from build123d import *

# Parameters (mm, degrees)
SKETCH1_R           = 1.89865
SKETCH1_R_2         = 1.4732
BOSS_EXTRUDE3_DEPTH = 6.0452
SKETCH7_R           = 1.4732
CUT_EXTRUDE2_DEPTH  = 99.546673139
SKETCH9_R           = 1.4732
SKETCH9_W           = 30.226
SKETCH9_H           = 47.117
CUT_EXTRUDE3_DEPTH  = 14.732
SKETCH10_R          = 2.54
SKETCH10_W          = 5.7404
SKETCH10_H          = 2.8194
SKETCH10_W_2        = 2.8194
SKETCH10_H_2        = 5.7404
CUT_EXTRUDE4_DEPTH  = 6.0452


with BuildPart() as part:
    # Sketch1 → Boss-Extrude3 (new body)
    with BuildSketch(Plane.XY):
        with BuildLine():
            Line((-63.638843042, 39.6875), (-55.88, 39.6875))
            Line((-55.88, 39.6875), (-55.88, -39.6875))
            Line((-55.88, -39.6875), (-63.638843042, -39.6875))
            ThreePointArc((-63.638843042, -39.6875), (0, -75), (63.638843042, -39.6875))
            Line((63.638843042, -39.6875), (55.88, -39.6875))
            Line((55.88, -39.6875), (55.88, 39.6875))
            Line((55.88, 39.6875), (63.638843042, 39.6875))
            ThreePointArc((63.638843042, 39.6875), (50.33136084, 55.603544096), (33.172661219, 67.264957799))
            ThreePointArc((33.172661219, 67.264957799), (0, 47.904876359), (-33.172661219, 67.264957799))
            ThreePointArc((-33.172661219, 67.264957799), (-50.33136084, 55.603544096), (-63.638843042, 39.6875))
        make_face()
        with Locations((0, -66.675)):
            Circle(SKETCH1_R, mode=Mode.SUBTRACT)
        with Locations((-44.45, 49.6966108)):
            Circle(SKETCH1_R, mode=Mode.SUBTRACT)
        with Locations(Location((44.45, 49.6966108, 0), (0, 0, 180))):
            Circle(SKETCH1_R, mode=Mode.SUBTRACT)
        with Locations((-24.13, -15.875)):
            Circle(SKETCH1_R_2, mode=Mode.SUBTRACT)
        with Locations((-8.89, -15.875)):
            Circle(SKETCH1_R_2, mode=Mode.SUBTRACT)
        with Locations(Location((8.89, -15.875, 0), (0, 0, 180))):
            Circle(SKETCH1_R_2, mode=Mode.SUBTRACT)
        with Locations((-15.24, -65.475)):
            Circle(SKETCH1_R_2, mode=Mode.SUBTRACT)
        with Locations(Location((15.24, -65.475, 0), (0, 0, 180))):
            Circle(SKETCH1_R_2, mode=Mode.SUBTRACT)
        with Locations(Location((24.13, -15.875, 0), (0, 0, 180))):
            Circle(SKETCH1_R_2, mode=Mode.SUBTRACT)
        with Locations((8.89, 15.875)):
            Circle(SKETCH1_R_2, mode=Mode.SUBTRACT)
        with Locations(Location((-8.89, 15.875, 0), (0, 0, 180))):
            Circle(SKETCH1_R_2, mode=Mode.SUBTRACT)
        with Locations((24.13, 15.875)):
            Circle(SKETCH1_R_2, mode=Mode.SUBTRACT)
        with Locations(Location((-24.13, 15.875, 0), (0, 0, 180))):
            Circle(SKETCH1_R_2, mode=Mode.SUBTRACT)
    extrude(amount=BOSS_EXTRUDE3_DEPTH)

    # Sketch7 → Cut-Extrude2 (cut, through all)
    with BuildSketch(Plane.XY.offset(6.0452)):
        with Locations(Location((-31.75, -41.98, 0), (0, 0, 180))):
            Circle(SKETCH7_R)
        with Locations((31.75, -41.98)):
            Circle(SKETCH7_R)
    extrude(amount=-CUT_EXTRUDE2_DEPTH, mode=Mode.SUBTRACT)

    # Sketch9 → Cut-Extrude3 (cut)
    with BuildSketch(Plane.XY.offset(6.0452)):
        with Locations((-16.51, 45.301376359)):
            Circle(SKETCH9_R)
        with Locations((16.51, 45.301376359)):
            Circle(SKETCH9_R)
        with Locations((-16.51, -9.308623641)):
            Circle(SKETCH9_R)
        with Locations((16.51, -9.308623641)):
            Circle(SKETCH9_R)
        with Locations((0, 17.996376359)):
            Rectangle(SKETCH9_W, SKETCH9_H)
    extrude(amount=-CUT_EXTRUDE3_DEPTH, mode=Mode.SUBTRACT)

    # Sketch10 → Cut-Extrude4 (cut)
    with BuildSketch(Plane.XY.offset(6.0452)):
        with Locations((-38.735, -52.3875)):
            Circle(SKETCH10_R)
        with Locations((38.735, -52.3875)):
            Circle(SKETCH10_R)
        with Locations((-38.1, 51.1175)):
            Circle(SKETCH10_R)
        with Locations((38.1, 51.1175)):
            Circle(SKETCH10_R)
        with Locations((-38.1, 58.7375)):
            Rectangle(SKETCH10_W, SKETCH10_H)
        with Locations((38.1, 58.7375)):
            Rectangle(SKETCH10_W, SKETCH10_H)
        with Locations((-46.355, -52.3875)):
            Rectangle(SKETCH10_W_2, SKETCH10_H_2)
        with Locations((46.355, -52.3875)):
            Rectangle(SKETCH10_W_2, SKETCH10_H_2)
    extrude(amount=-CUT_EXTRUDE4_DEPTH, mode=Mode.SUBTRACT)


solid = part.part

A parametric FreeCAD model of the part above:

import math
import FreeCAD as App
import Part
import Sketcher
from FreeCAD import Vector
Q = App.Units.Quantity

doc = App.newDocument("Part")
body = doc.addObject("PartDesign::Body", "Body")

sketch1 = doc.addObject("Sketcher::SketchObject", "Sketch")
body.addObject(sketch1)
sketch1.AttachmentSupport = (doc.XY_Plane, [""])
sketch1.MapMode = "FlatFace"
sketch1.addGeometry(Part.LineSegment(Vector(-63.6, 39.7, 0), Vector(-55.9, 39.7, 0)), False)
sketch1.addGeometry(Part.LineSegment(Vector(-55.9, 39.7, 0), Vector(-55.9, -39.7, 0)), False)
sketch1.addGeometry(Part.LineSegment(Vector(-55.9, -39.7, 0), Vector(-63.6, -39.7, 0)), False)
sketch1.addGeometry(Part.ArcOfCircle(Part.Circle(Vector(0, 0, 0), Vector(0, 0, 1), 75), math.radians(-148), math.radians(-32)), False)
sketch1.addGeometry(Part.LineSegment(Vector(63.6, -39.7, 0), Vector(55.9, -39.7, 0)), False)
sketch1.addGeometry(Part.LineSegment(Vector(55.9, -39.7, 0), Vector(55.9, 39.7, 0)), False)
sketch1.addGeometry(Part.LineSegment(Vector(55.9, 39.7, 0), Vector(63.6, 39.7, 0)), False)
sketch1.addGeometry(Part.ArcOfCircle(Part.Circle(Vector(0, 0, 0), Vector(0, 0, 1), 75), math.radians(32), math.radians(64)), False)
sketch1.addGeometry(Part.ArcOfCircle(Part.Circle(Vector(0, 86, 0), Vector(0, 0, 1), 38.1), math.radians(-151), math.radians(-29)), False)
sketch1.addGeometry(Part.ArcOfCircle(Part.Circle(Vector(0, 0, 0), Vector(0, 0, 1), 75), math.radians(116), math.radians(148)), False)
sketch1.addGeometry(Part.Circle(Vector(-15.2, -65.5, 0), Vector(0, 0, 1), 1.5), False)
sketch1.addGeometry(Part.Circle(Vector(-24.1, -15.9, 0), Vector(0, 0, 1), 1.5), False)
sketch1.addGeometry(Part.Circle(Vector(-8.9, -15.9, 0), Vector(0, 0, 1), 1.5), False)
sketch1.addGeometry(Part.Circle(Vector(0, -66.7, 0), Vector(0, 0, 1), 1.9), False)
sketch1.addGeometry(Part.Circle(Vector(15.2, -65.5, 0), Vector(0, 0, 1), 1.5), False)
sketch1.addGeometry(Part.Circle(Vector(8.9, -15.9, 0), Vector(0, 0, 1), 1.5), False)
sketch1.addGeometry(Part.Circle(Vector(24.1, -15.9, 0), Vector(0, 0, 1), 1.5), False)
sketch1.addGeometry(Part.Circle(Vector(-24.1, 15.9, 0), Vector(0, 0, 1), 1.5), False)
sketch1.addGeometry(Part.Circle(Vector(-8.9, 15.9, 0), Vector(0, 0, 1), 1.5), False)
sketch1.addGeometry(Part.Circle(Vector(-44.5, 49.7, 0), Vector(0, 0, 1), 1.9), False)
sketch1.addGeometry(Part.Circle(Vector(8.9, 15.9, 0), Vector(0, 0, 1), 1.5), False)
sketch1.addGeometry(Part.Circle(Vector(24.1, 15.9, 0), Vector(0, 0, 1), 1.5), False)
sketch1.addGeometry(Part.Circle(Vector(44.5, 49.7, 0), Vector(0, 0, 1), 1.9), False)
sketch1.addConstraint(Sketcher.Constraint("Coincident", 0, 2, 1, 1))
sketch1.addConstraint(Sketcher.Constraint("Coincident", 1, 2, 2, 1))
sketch1.addConstraint(Sketcher.Constraint("Coincident", 2, 2, 3, 1))
sketch1.addConstraint(Sketcher.Constraint("Coincident", 3, 2, 4, 1))
sketch1.addConstraint(Sketcher.Constraint("Coincident", 4, 2, 5, 1))
sketch1.addConstraint(Sketcher.Constraint("Coincident", 5, 2, 6, 1))
sketch1.addConstraint(Sketcher.Constraint("Coincident", 6, 2, 7, 1))
sketch1.addConstraint(Sketcher.Constraint("Coincident", 7, 2, 8, 2))
sketch1.addConstraint(Sketcher.Constraint("Coincident", 8, 1, 9, 1))
sketch1.addConstraint(Sketcher.Constraint("Coincident", 9, 2, 0, 1))
sketch1.addConstraint(Sketcher.Constraint("Horizontal", 0))
sketch1.addConstraint(Sketcher.Constraint("Vertical", 1))
sketch1.addConstraint(Sketcher.Constraint("Horizontal", 2))
sketch1.addConstraint(Sketcher.Constraint("Horizontal", 4))
sketch1.addConstraint(Sketcher.Constraint("Vertical", 5))
sketch1.addConstraint(Sketcher.Constraint("Horizontal", 6))
sketch1.addConstraint(Sketcher.Constraint("Coincident", 3, 3, -1, 1))
sketch1.addConstraint(Sketcher.Constraint("Coincident", 7, 3, -1, 1))
sketch1.addConstraint(Sketcher.Constraint("Coincident", 9, 3, -1, 1))
sketch1.addConstraint(Sketcher.Constraint("Equal", 3, 7))
sketch1.addConstraint(Sketcher.Constraint("Equal", 7, 9))
sketch1.addConstraint(Sketcher.Constraint("Equal", 10, 11))
sketch1.addConstraint(Sketcher.Constraint("Equal", 11, 12))
sketch1.addConstraint(Sketcher.Constraint("Equal", 12, 14))
sketch1.addConstraint(Sketcher.Constraint("Equal", 14, 15))
sketch1.addConstraint(Sketcher.Constraint("Equal", 15, 16))
sketch1.addConstraint(Sketcher.Constraint("Equal", 16, 17))
sketch1.addConstraint(Sketcher.Constraint("Equal", 17, 18))
sketch1.addConstraint(Sketcher.Constraint("Equal", 13, 19))
sketch1.addConstraint(Sketcher.Constraint("Equal", 18, 20))
sketch1.addConstraint(Sketcher.Constraint("Equal", 20, 21))
sketch1.addConstraint(Sketcher.Constraint("Equal", 19, 22))
sketch1.addConstraint(Sketcher.Constraint("Symmetric", 16, 3, 17, 3, -1, 1))
sketch1.addConstraint(Sketcher.Constraint("Symmetric", 15, 3, 18, 3, -1, 1))
sketch1.addConstraint(Sketcher.Constraint("Symmetric", 12, 3, 20, 3, -1, 1))
sketch1.addConstraint(Sketcher.Constraint("Symmetric", 11, 3, 21, 3, -1, 1))
sketch1.addConstraint(Sketcher.Constraint("Symmetric", 0, 2, 4, 2, -1, 1))
sketch1.addConstraint(Sketcher.Constraint("Symmetric", 10, 3, 14, 3, -2))
sketch1.addConstraint(Sketcher.Constraint("Symmetric", 12, 3, 15, 3, -2))
sketch1.addConstraint(Sketcher.Constraint("Symmetric", 11, 3, 16, 3, -2))
sketch1.addConstraint(Sketcher.Constraint("Symmetric", 19, 3, 22, 3, -2))
sketch1.addConstraint(Sketcher.Constraint("PointOnObject", 8, 3, -2))
sketch1.addConstraint(Sketcher.Constraint("PointOnObject", 13, 3, -2))
sketch1.addConstraint(Sketcher.Constraint("Horizontal", 11, 3, 12, 3))
sketch1.addConstraint(Sketcher.Constraint("Horizontal", 2, 2, 3, 2))
sketch1.addConstraint(Sketcher.Constraint("Horizontal", 0, 2, 5, 2))
sketch1.addConstraint(Sketcher.Constraint("Radius", 8, Q("1.5 in")))
sketch1.addConstraint(Sketcher.Constraint("Diameter", 10, Q("0.116 in")))
sketch1.addConstraint(Sketcher.Constraint("DistanceY", 13, 3, 12, 3, Q("2 in")))
sketch1.addConstraint(Sketcher.Constraint("Diameter", 13, Q("0.1495 in")))
sketch1.addConstraint(Sketcher.Constraint("DistanceX", 10, 3, -1, 1, Q("0.6 in")))
sketch1.addConstraint(Sketcher.Constraint("DistanceX", 0, 2, -1, 1, Q("2.2 in")))
sketch1.addConstraint(Sketcher.Constraint("DistanceX", 11, 3, 12, 3, Q("0.6 in")))
sketch1.addConstraint(Sketcher.Constraint("DistanceX", 12, 3, 15, 3, Q("0.7 in")))
sketch1.addConstraint(Sketcher.Constraint("DistanceX", 19, 3, 17, 3, Q("0.8 in")))
sketch1.addConstraint(Sketcher.Constraint("DistanceY", 1, 2, 1, 1, Q("3.125 in")))
sketch1.addConstraint(Sketcher.Constraint("Radius", 3, 75.0))
sketch1.addConstraint(Sketcher.Constraint("DistanceY", 11, 3, 17, 3, Q("1.25 in")))
sketch1.addConstraint(Sketcher.Constraint("DistanceY", 10, 3, -1, 1, 65.475))
sketch1.addConstraint(Sketcher.Constraint("DistanceY", -1, 1, 19, 3, 49.696611))
sketch1.addConstraint(Sketcher.Constraint("DistanceX", -1, 1, 7, 2, 33.172661))
pad1 = doc.addObject("PartDesign::Pad", "Pad")
body.addObject(pad1)
pad1.Profile = sketch1
pad1.Length = Q("0.238 in")

sketch2 = doc.addObject("Sketcher::SketchObject", "Sketch001")
body.addObject(sketch2)
sketch2.AttachmentSupport = (doc.XY_Plane, [""])
sketch2.MapMode = "FlatFace"
sketch2.AttachmentOffset = App.Placement(Vector(0, 0, 0.238 * 25.4), App.Rotation())
sketch2.addGeometry(Part.Circle(Vector(-31.8, -42, 0), Vector(0, 0, 1), 1.5), False)
sketch2.addGeometry(Part.Circle(Vector(31.8, -42, 0), Vector(0, 0, 1), 1.5), False)
sketch2.addConstraint(Sketcher.Constraint("Equal", 0, 1))
sketch2.addConstraint(Sketcher.Constraint("Symmetric", 0, 3, 1, 3, -2))
sketch2.addConstraint(Sketcher.Constraint("Diameter", 0, Q("0.116 in")))
sketch2.addConstraint(Sketcher.Constraint("DistanceX", 0, 3, 1, 3, Q("2.5 in")))
sketch2.addConstraint(Sketcher.Constraint("DistanceY", 0, 3, -1, 1, 41.98))
pocket1 = doc.addObject("PartDesign::Pocket", "Pocket")
body.addObject(pocket1)
pocket1.Profile = sketch2
pocket1.Type = "ThroughAll"

sketch3 = doc.addObject("Sketcher::SketchObject", "Sketch002")
body.addObject(sketch3)
sketch3.AttachmentSupport = (doc.XY_Plane, [""])
sketch3.MapMode = "FlatFace"
sketch3.AttachmentOffset = App.Placement(Vector(0, 0, 0.238 * 25.4), App.Rotation())
sketch3.addGeometry(Part.Circle(Vector(-16.5, 45.3, 0), Vector(0, 0, 1), 1.5), False)
sketch3.addGeometry(Part.Circle(Vector(16.5, 45.3, 0), Vector(0, 0, 1), 1.5), False)
sketch3.addGeometry(Part.Circle(Vector(-16.5, -9.3, 0), Vector(0, 0, 1), 1.5), False)
sketch3.addGeometry(Part.Circle(Vector(16.5, -9.3, 0), Vector(0, 0, 1), 1.5), False)
sketch3.addGeometry(Part.LineSegment(Vector(-15.1, 41.6, 0), Vector(-15.1, -5.6, 0)), False)
sketch3.addGeometry(Part.LineSegment(Vector(-15.1, -5.6, 0), Vector(15.1, -5.6, 0)), False)
sketch3.addGeometry(Part.LineSegment(Vector(15.1, -5.6, 0), Vector(15.1, 41.6, 0)), False)
sketch3.addGeometry(Part.LineSegment(Vector(15.1, 41.6, 0), Vector(-15.1, 41.6, 0)), False)
sketch3.addConstraint(Sketcher.Constraint("Coincident", 4, 2, 5, 1))
sketch3.addConstraint(Sketcher.Constraint("Coincident", 5, 2, 6, 1))
sketch3.addConstraint(Sketcher.Constraint("Coincident", 6, 2, 7, 1))
sketch3.addConstraint(Sketcher.Constraint("Coincident", 7, 2, 4, 1))
sketch3.addConstraint(Sketcher.Constraint("Vertical", 4))
sketch3.addConstraint(Sketcher.Constraint("Horizontal", 5))
sketch3.addConstraint(Sketcher.Constraint("Vertical", 6))
sketch3.addConstraint(Sketcher.Constraint("Horizontal", 7))
sketch3.addConstraint(Sketcher.Constraint("Equal", 0, 1))
sketch3.addConstraint(Sketcher.Constraint("Equal", 1, 2))
sketch3.addConstraint(Sketcher.Constraint("Equal", 2, 3))
sketch3.addConstraint(Sketcher.Constraint("Symmetric", 0, 3, 1, 3, -2))
sketch3.addConstraint(Sketcher.Constraint("Symmetric", 2, 3, 3, 3, -2))
sketch3.addConstraint(Sketcher.Constraint("Vertical", 0, 3, 2, 3))
sketch3.addConstraint(Sketcher.Constraint("Diameter", 0, Q("0.116 in")))
sketch3.addConstraint(Sketcher.Constraint("DistanceX", 5, 1, 5, 2, Q("1.19 in")))
sketch3.addConstraint(Sketcher.Constraint("DistanceX", 0, 3, 1, 3, Q("1.3 in")))
sketch3.addConstraint(Sketcher.Constraint("DistanceY", 4, 2, 4, 1, Q("1.855 in")))
sketch3.addConstraint(Sketcher.Constraint("DistanceY", 2, 3, 0, 3, Q("2.15 in")))
sketch3.addConstraint(Sketcher.Constraint("DistanceX", 4, 2, -1, 1, Q("0.595 in")))
sketch3.addConstraint(Sketcher.Constraint("DistanceY", 2, 3, 4, 2, Q("0.1475 in")))
sketch3.addConstraint(Sketcher.Constraint("DistanceY", -1, 1, 0, 3, 45.301376))
pocket2 = doc.addObject("PartDesign::Pocket", "Pocket001")
body.addObject(pocket2)
pocket2.Profile = sketch3
pocket2.Length = Q("0.58 in")

sketch4 = doc.addObject("Sketcher::SketchObject", "Sketch003")
body.addObject(sketch4)
sketch4.AttachmentSupport = (doc.XY_Plane, [""])
sketch4.MapMode = "FlatFace"
sketch4.AttachmentOffset = App.Placement(Vector(0, 0, 0.238 * 25.4), App.Rotation())
sketch4.addGeometry(Part.Circle(Vector(-38.7, -52.4, 0), Vector(0, 0, 1), 2.5), False)
sketch4.addGeometry(Part.Circle(Vector(38.7, -52.4, 0), Vector(0, 0, 1), 2.5), False)
sketch4.addGeometry(Part.Circle(Vector(-38.1, 51.1, 0), Vector(0, 0, 1), 2.5), False)
sketch4.addGeometry(Part.Circle(Vector(38.1, 51.1, 0), Vector(0, 0, 1), 2.5), False)
sketch4.addGeometry(Part.LineSegment(Vector(-41, 60.1, 0), Vector(-41, 57.3, 0)), False)
sketch4.addGeometry(Part.LineSegment(Vector(-41, 57.3, 0), Vector(-35.2, 57.3, 0)), False)
sketch4.addGeometry(Part.LineSegment(Vector(-35.2, 57.3, 0), Vector(-35.2, 60.1, 0)), False)
sketch4.addGeometry(Part.LineSegment(Vector(-35.2, 60.1, 0), Vector(-41, 60.1, 0)), False)
sketch4.addGeometry(Part.LineSegment(Vector(35.2, 60.1, 0), Vector(35.2, 57.3, 0)), False)
sketch4.addGeometry(Part.LineSegment(Vector(35.2, 57.3, 0), Vector(41, 57.3, 0)), False)
sketch4.addGeometry(Part.LineSegment(Vector(41, 57.3, 0), Vector(41, 60.1, 0)), False)
sketch4.addGeometry(Part.LineSegment(Vector(41, 60.1, 0), Vector(35.2, 60.1, 0)), False)
sketch4.addGeometry(Part.LineSegment(Vector(-47.8, -49.5, 0), Vector(-47.8, -55.3, 0)), False)
sketch4.addGeometry(Part.LineSegment(Vector(-47.8, -55.3, 0), Vector(-44.9, -55.3, 0)), False)
sketch4.addGeometry(Part.LineSegment(Vector(-44.9, -55.3, 0), Vector(-44.9, -49.5, 0)), False)
sketch4.addGeometry(Part.LineSegment(Vector(-44.9, -49.5, 0), Vector(-47.8, -49.5, 0)), False)
sketch4.addGeometry(Part.LineSegment(Vector(44.9, -49.5, 0), Vector(44.9, -55.3, 0)), False)
sketch4.addGeometry(Part.LineSegment(Vector(44.9, -55.3, 0), Vector(47.8, -55.3, 0)), False)
sketch4.addGeometry(Part.LineSegment(Vector(47.8, -55.3, 0), Vector(47.8, -49.5, 0)), False)
sketch4.addGeometry(Part.LineSegment(Vector(47.8, -49.5, 0), Vector(44.9, -49.5, 0)), False)
sketch4.addConstraint(Sketcher.Constraint("Coincident", 4, 2, 5, 1))
sketch4.addConstraint(Sketcher.Constraint("Coincident", 5, 2, 6, 1))
sketch4.addConstraint(Sketcher.Constraint("Coincident", 6, 2, 7, 1))
sketch4.addConstraint(Sketcher.Constraint("Coincident", 7, 2, 4, 1))
sketch4.addConstraint(Sketcher.Constraint("Coincident", 8, 2, 9, 1))
sketch4.addConstraint(Sketcher.Constraint("Coincident", 9, 2, 10, 1))
sketch4.addConstraint(Sketcher.Constraint("Coincident", 10, 2, 11, 1))
sketch4.addConstraint(Sketcher.Constraint("Coincident", 11, 2, 8, 1))
sketch4.addConstraint(Sketcher.Constraint("Coincident", 12, 2, 13, 1))
sketch4.addConstraint(Sketcher.Constraint("Coincident", 13, 2, 14, 1))
sketch4.addConstraint(Sketcher.Constraint("Coincident", 14, 2, 15, 1))
sketch4.addConstraint(Sketcher.Constraint("Coincident", 15, 2, 12, 1))
sketch4.addConstraint(Sketcher.Constraint("Coincident", 16, 2, 17, 1))
sketch4.addConstraint(Sketcher.Constraint("Coincident", 17, 2, 18, 1))
sketch4.addConstraint(Sketcher.Constraint("Coincident", 18, 2, 19, 1))
sketch4.addConstraint(Sketcher.Constraint("Coincident", 19, 2, 16, 1))
sketch4.addConstraint(Sketcher.Constraint("Vertical", 4))
sketch4.addConstraint(Sketcher.Constraint("Horizontal", 5))
sketch4.addConstraint(Sketcher.Constraint("Vertical", 6))
sketch4.addConstraint(Sketcher.Constraint("Horizontal", 7))
sketch4.addConstraint(Sketcher.Constraint("Vertical", 8))
sketch4.addConstraint(Sketcher.Constraint("Horizontal", 9))
sketch4.addConstraint(Sketcher.Constraint("Vertical", 10))
sketch4.addConstraint(Sketcher.Constraint("Horizontal", 11))
sketch4.addConstraint(Sketcher.Constraint("Vertical", 12))
sketch4.addConstraint(Sketcher.Constraint("Horizontal", 13))
sketch4.addConstraint(Sketcher.Constraint("Vertical", 14))
sketch4.addConstraint(Sketcher.Constraint("Horizontal", 15))
sketch4.addConstraint(Sketcher.Constraint("Vertical", 16))
sketch4.addConstraint(Sketcher.Constraint("Horizontal", 17))
sketch4.addConstraint(Sketcher.Constraint("Vertical", 18))
sketch4.addConstraint(Sketcher.Constraint("Horizontal", 19))
sketch4.addConstraint(Sketcher.Constraint("Equal", 0, 1))
sketch4.addConstraint(Sketcher.Constraint("Equal", 1, 2))
sketch4.addConstraint(Sketcher.Constraint("Equal", 2, 3))
sketch4.addConstraint(Sketcher.Constraint("Symmetric", 0, 3, 1, 3, -2))
sketch4.addConstraint(Sketcher.Constraint("Symmetric", 2, 3, 3, 3, -2))
sketch4.addConstraint(Sketcher.Constraint("Symmetric", 5, 2, 8, 2, -2))
sketch4.addConstraint(Sketcher.Constraint("Symmetric", 7, 2, 10, 2, -2))
sketch4.addConstraint(Sketcher.Constraint("Symmetric", 13, 2, 16, 2, -2))
sketch4.addConstraint(Sketcher.Constraint("Symmetric", 15, 2, 18, 2, -2))
sketch4.addConstraint(Sketcher.Constraint("Equal", 19, 4))
sketch4.addConstraint(Sketcher.Constraint("Equal", 11, 12))
sketch4.addConstraint(Sketcher.Constraint("Diameter", 0, Q("0.2 in")))
sketch4.addConstraint(Sketcher.Constraint("DistanceX", 2, 3, 3, 3, Q("3 in")))
sketch4.addConstraint(Sketcher.Constraint("DistanceX", 4, 2, 8, 2, Q("3 in")))
sketch4.addConstraint(Sketcher.Constraint("DistanceX", 5, 1, 5, 2, Q("0.226 in")))
sketch4.addConstraint(Sketcher.Constraint("DistanceX", 13, 1, 13, 2, Q("0.111 in")))
sketch4.addConstraint(Sketcher.Constraint("DistanceX", 0, 3, 1, 3, Q("3.05 in")))
sketch4.addConstraint(Sketcher.Constraint("DistanceX", 12, 2, 16, 2, Q("3.65 in")))
sketch4.addConstraint(Sketcher.Constraint("DistanceY", 0, 3, -1, 1, Q("2.0625 in")))
sketch4.addConstraint(Sketcher.Constraint("DistanceY", -1, 1, 4, 2, Q("2.257 in")))
sketch4.addConstraint(Sketcher.Constraint("DistanceY", 0, 3, 2, 3, Q("4.075 in")))
sketch4.addConstraint(Sketcher.Constraint("DistanceY", 12, 2, 0, 3, Q("0.113 in")))
pocket3 = doc.addObject("PartDesign::Pocket", "Pocket002")
body.addObject(pocket3)
pocket3.Profile = sketch4
pocket3.Length = Q("0.238 in")

doc.recompute()
